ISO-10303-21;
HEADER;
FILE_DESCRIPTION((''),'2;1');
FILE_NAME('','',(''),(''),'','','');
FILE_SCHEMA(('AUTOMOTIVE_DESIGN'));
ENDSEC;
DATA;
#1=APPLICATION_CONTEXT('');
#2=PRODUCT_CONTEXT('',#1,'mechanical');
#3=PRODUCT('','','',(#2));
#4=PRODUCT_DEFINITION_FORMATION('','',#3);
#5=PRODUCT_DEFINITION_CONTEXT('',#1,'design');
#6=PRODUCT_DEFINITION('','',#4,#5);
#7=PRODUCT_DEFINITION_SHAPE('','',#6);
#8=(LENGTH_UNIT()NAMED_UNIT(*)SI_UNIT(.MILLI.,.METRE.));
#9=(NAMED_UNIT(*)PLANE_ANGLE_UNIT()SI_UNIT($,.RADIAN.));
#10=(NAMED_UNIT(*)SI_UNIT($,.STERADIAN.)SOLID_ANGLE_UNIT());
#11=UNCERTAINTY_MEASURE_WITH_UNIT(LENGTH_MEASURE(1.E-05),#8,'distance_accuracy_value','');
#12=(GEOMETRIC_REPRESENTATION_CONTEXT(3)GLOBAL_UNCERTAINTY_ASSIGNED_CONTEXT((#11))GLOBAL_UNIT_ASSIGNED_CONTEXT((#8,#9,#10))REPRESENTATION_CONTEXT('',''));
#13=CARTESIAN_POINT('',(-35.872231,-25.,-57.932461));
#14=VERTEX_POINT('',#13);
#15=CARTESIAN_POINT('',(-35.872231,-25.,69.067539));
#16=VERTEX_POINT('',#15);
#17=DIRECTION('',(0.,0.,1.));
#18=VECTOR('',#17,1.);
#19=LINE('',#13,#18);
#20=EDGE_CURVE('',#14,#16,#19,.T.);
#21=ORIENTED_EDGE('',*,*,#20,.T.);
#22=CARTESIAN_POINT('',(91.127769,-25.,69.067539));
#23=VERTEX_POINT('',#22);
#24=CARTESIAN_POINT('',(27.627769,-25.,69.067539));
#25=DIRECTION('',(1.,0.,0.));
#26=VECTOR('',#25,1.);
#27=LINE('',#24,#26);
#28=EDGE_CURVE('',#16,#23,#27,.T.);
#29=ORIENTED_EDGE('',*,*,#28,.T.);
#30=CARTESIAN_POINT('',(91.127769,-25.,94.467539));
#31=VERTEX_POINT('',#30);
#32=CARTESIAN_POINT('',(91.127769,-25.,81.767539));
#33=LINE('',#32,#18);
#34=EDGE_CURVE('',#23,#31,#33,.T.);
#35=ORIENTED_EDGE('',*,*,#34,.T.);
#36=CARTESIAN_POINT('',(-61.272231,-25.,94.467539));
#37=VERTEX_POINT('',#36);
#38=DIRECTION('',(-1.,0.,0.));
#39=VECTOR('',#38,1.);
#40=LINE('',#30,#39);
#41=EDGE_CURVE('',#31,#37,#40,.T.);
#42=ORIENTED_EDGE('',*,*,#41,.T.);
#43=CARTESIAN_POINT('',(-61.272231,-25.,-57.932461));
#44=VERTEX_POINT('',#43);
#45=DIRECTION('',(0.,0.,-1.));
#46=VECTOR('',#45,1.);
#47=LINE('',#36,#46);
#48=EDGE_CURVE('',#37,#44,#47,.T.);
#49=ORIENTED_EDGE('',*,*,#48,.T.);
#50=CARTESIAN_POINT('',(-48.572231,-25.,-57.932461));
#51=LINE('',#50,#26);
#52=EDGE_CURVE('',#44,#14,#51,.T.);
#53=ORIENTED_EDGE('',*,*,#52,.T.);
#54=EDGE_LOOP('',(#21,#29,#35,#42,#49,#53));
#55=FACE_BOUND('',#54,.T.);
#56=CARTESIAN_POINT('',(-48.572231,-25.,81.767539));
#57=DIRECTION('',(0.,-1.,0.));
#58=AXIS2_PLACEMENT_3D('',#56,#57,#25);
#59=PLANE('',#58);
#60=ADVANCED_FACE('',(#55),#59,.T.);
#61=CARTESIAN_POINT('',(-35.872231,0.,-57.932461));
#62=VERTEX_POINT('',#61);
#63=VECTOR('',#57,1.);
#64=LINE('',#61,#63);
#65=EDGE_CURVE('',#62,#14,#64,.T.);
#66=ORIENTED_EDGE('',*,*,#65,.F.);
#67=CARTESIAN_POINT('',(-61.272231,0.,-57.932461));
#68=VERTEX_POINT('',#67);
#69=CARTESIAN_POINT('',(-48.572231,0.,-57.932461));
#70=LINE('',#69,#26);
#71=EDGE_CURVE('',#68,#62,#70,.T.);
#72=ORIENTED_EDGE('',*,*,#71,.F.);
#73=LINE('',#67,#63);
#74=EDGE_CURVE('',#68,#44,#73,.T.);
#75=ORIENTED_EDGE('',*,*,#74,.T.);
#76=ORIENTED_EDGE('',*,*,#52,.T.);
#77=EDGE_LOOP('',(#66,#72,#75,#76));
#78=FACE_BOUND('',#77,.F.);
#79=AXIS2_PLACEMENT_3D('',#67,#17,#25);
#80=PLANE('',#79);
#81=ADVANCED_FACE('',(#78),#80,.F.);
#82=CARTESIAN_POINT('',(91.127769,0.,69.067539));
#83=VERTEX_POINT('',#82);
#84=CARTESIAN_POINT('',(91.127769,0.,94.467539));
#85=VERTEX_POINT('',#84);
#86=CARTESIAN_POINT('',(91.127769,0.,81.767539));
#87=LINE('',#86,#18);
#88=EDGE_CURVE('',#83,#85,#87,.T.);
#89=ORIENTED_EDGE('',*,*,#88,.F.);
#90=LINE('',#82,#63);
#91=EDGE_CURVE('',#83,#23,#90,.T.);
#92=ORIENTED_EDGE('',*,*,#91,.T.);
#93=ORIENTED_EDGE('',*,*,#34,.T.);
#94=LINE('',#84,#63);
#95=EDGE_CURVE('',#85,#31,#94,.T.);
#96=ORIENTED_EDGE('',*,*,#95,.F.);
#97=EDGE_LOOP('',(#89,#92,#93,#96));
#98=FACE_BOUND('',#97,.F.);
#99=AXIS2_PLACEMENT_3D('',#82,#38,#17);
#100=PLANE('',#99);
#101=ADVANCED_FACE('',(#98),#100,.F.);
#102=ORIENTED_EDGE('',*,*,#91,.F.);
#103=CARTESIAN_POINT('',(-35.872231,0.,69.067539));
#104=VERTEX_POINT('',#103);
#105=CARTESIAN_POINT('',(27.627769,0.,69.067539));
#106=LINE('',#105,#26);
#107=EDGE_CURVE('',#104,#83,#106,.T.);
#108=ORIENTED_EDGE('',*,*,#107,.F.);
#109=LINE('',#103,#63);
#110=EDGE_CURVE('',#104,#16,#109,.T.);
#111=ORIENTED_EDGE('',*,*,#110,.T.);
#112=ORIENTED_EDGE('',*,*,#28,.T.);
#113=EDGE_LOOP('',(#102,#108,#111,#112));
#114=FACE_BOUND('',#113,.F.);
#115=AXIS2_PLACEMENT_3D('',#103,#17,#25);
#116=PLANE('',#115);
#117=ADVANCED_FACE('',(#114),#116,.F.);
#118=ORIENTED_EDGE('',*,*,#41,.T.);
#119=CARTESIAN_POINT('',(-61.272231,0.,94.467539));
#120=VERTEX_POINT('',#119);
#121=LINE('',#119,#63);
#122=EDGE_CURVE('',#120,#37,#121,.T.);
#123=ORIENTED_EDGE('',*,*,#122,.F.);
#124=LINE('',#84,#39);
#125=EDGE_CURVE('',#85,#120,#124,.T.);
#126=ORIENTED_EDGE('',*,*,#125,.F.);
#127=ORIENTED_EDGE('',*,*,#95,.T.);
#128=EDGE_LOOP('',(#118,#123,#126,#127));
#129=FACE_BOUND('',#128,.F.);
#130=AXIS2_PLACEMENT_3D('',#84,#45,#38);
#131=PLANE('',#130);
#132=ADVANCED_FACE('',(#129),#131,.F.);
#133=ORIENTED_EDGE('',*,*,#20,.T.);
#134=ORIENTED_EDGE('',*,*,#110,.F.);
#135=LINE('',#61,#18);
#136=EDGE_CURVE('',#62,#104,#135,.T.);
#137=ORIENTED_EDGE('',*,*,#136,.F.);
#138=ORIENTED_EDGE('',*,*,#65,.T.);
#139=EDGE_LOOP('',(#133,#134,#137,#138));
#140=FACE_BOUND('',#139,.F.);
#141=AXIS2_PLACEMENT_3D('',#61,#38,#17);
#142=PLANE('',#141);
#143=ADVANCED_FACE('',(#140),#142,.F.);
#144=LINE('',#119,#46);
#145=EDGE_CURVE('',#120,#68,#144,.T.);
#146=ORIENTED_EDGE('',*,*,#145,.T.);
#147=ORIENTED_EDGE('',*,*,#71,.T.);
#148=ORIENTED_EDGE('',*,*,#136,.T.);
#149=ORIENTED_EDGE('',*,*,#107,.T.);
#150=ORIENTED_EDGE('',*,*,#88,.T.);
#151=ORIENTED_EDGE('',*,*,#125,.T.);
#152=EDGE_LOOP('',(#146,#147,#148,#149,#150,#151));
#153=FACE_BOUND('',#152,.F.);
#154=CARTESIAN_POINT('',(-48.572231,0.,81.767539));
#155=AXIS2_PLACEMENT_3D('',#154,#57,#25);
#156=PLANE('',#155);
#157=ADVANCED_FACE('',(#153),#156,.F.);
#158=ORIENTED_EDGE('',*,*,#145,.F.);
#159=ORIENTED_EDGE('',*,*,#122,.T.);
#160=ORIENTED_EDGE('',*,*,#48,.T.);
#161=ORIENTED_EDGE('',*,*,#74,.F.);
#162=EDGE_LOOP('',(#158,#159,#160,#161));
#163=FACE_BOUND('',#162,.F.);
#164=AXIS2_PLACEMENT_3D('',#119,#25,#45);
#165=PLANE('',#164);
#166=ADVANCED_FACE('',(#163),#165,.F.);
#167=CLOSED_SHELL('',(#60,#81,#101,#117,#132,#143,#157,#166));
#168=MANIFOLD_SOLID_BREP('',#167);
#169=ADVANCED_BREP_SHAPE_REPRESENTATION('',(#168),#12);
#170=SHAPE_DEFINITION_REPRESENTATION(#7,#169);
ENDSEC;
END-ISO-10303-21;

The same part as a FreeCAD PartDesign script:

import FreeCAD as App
import Part
import Sketcher
from FreeCAD import Vector
Q = App.Units.Quantity


def add_polygon(sketch, points):
    """Adds a closed chain of lines whose ends are joined by coincident constraints."""
    first, n = sketch.GeometryCount, len(points)
    for a, b in zip(points, points[1:] + points[:1]):
        sketch.addGeometry(Part.LineSegment(App.Vector(*a, 0), App.Vector(*b, 0)), False)
    for i in range(n):
        sketch.addConstraint(Sketcher.Constraint("Coincident", first + i, 2, first + (i + 1) % n, 1))

doc = App.newDocument("Part")
body = doc.addObject("PartDesign::Body", "Body")

# Sketch on XZ plane
sketch1 = doc.addObject("Sketcher::SketchObject", "Sketch")
body.addObject(sketch1)
sketch1.AttachmentSupport = (doc.XZ_Plane, [""])
sketch1.MapMode = "FlatFace"
add_polygon(sketch1, [(-61, 94), (-61, -58), (-36, -58), (-36, 69), (91, 69), (91, 94)])  # lines 0-5
sketch1.addConstraint(Sketcher.Constraint("Vertical", 0))
sketch1.addConstraint(Sketcher.Constraint("Horizontal", 1))
sketch1.addConstraint(Sketcher.Constraint("Vertical", 2))
sketch1.addConstraint(Sketcher.Constraint("Horizontal", 3))
sketch1.addConstraint(Sketcher.Constraint("Vertical", 4))
sketch1.addConstraint(Sketcher.Constraint("Horizontal", 5))
sketch1.addConstraint(Sketcher.Constraint("Equal", 5, 0))
sketch1.addConstraint(Sketcher.Constraint("Equal", 3, 2))
sketch1.addConstraint(Sketcher.Constraint("DistanceX", 1, 1, 1, 2, Q("1 in")))
sketch1.addConstraint(Sketcher.Constraint("DistanceX", 3, 1, 3, 2, Q("5 in")))
sketch1.addConstraint(Sketcher.Constraint("DistanceX", 0, 2, -1, 1, 61.272231))
sketch1.addConstraint(Sketcher.Constraint("DistanceY", 0, 2, -1, 1, 57.932461))
pad1 = doc.addObject("PartDesign::Pad", "Pad")
body.addObject(pad1)
pad1.Profile = sketch1
pad1.Length = 25

doc.recompute()
